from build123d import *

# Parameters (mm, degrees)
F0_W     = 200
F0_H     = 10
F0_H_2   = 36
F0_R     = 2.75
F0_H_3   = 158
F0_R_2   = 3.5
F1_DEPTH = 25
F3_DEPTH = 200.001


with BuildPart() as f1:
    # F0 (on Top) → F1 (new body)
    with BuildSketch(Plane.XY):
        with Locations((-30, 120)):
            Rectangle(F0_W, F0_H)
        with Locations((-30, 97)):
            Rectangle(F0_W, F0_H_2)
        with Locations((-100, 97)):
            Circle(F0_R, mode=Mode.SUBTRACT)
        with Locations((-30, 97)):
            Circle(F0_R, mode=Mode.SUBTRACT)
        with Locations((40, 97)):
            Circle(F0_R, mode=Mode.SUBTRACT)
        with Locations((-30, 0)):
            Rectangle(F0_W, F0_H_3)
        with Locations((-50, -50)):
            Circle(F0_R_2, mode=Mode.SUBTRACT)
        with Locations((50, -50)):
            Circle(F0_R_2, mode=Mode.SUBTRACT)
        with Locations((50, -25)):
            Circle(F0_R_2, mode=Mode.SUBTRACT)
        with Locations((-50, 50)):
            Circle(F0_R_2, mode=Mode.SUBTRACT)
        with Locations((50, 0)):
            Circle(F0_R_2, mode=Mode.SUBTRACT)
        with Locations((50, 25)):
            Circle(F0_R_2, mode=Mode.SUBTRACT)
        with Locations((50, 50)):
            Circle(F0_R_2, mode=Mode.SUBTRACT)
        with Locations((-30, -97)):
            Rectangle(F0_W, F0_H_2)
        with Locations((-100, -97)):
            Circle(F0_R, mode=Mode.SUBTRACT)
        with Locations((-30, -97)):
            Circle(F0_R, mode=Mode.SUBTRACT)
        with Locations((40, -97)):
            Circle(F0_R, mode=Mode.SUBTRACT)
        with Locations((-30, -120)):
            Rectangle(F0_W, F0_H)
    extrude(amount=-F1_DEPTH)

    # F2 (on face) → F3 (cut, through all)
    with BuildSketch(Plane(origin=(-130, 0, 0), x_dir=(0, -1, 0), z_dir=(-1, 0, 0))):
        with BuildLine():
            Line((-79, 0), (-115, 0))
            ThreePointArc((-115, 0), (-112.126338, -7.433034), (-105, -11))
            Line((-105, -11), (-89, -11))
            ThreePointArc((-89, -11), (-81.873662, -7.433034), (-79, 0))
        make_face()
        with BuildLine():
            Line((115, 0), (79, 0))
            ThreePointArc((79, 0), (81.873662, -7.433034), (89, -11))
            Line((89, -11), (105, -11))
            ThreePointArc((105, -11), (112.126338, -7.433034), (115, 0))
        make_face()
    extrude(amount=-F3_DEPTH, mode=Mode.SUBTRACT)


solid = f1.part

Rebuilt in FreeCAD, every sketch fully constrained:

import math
import FreeCAD as App
import Part
import Sketcher

V = App.Vector
Q = App.Units.Quantity


def add_polygon(sketch, points):
    """Adds a closed chain of lines whose ends are joined by coincident constraints."""
    first, n = sketch.GeometryCount, len(points)
    for a, b in zip(points, points[1:] + points[:1]):
        sketch.addGeometry(Part.LineSegment(App.Vector(*a, 0), App.Vector(*b, 0)), False)
    for i in range(n):
        sketch.addConstraint(Sketcher.Constraint("Coincident", first + i, 2, first + (i + 1) % n, 1))

doc = App.newDocument("Part")
body = doc.addObject("PartDesign::Body", "Body")

# Sketch on XY plane
sketch1 = body.newObject("Sketcher::SketchObject", "Sketch")
sketch1.AttachmentSupport = (doc.getObject("XY_Plane"), [""])
sketch1.MapMode = "FlatFace"
add_polygon(sketch1, [(-130, 125), (-130, -125), (70, -125), (70, 125)])  # lines 0-3
sketch1.addGeometry(Part.Circle(V(-100, -97, 0), V(0, 0, 1), 2.8), False)  # 4
sketch1.addGeometry(Part.Circle(V(-30, -97, 0), V(0, 0, 1), 2.8), False)  # 5
sketch1.addGeometry(Part.Circle(V(-50, -50, 0), V(0, 0, 1), 3.5), False)  # 6
sketch1.addGeometry(Part.Circle(V(40, -97, 0), V(0, 0, 1), 2.8), False)  # 7
sketch1.addGeometry(Part.Circle(V(50, -50, 0), V(0, 0, 1), 3.5), False)  # 8
sketch1.addGeometry(Part.Circle(V(50, -25, 0), V(0, 0, 1), 3.5), False)  # 9
sketch1.addGeometry(Part.Circle(V(-100, 97, 0), V(0, 0, 1), 2.8), False)  # 10
sketch1.addGeometry(Part.Circle(V(-50, 50, 0), V(0, 0, 1), 3.5), False)  # 11
sketch1.addGeometry(Part.Circle(V(-30, 97, 0), V(0, 0, 1), 2.8), False)  # 12
sketch1.addGeometry(Part.Circle(V(50, 0, 0), V(0, 0, 1), 3.5), False)  # 13
sketch1.addGeometry(Part.Circle(V(50, 25, 0), V(0, 0, 1), 3.5), False)  # 14
sketch1.addGeometry(Part.Circle(V(50, 50, 0), V(0, 0, 1), 3.5), False)  # 15
sketch1.addGeometry(Part.Circle(V(40, 97, 0), V(0, 0, 1), 2.8), False)  # 16
sketch1.addConstraint(Sketcher.Constraint("Vertical", 0))
sketch1.addConstraint(Sketcher.Constraint("Horizontal", 1))
sketch1.addConstraint(Sketcher.Constraint("Vertical", 2))
sketch1.addConstraint(Sketcher.Constraint("Horizontal", 3))
sketch1.addConstraint(Sketcher.Constraint("Equal", 4, 5))
sketch1.addConstraint(Sketcher.Constraint("Equal", 5, 7))
sketch1.addConstraint(Sketcher.Constraint("Equal", 6, 8))
sketch1.addConstraint(Sketcher.Constraint("Equal", 8, 9))
sketch1.addConstraint(Sketcher.Constraint("Equal", 7, 10))
sketch1.addConstraint(Sketcher.Constraint("Equal", 9, 11))
sketch1.addConstraint(Sketcher.Constraint("Equal", 10, 12))
sketch1.addConstraint(Sketcher.Constraint("Equal", 11, 13))
sketch1.addConstraint(Sketcher.Constraint("Equal", 13, 14))
sketch1.addConstraint(Sketcher.Constraint("Equal", 14, 15))
sketch1.addConstraint(Sketcher.Constraint("Equal", 12, 16))
sketch1.addConstraint(Sketcher.Constraint("Symmetric", 8, 3, 11, 3, -1, 1))
sketch1.addConstraint(Sketcher.Constraint("Symmetric", 6, 3, 15, 3, -1, 1))
sketch1.addConstraint(Sketcher.Constraint("Symmetric", 6, 3, 8, 3, -2))
sketch1.addConstraint(Sketcher.Constraint("Symmetric", 4, 3, 10, 3, -1))
sketch1.addConstraint(Sketcher.Constraint("Symmetric", 5, 3, 12, 3, -1))
sketch1.addConstraint(Sketcher.Constraint("Symmetric", 9, 3, 14, 3, -1))
sketch1.addConstraint(Sketcher.Constraint("Symmetric", 7, 3, 16, 3, -1))
sketch1.addConstraint(Sketcher.Constraint("PointOnObject", 13, 3, -1))
sketch1.addConstraint(Sketcher.Constraint("Horizontal", 4, 3, 5, 3))
sketch1.addConstraint(Sketcher.Constraint("Horizontal", 5, 3, 7, 3))
sketch1.addConstraint(Sketcher.Constraint("Vertical", 8, 3, 9, 3))
sketch1.addConstraint(Sketcher.Constraint("Vertical", 9, 3, 13, 3))
sketch1.addConstraint(Sketcher.Constraint("Diameter", 6, Q("7 mm")))
sketch1.addConstraint(Sketcher.Constraint("Diameter", 4, Q("5.5 mm")))
sketch1.addConstraint(Sketcher.Constraint("DistanceX", 1, 1, 1, 2, Q("200 mm")))
sketch1.addConstraint(Sketcher.Constraint("DistanceY", 0, 2, 0, 1, Q("250 mm")))
sketch1.addConstraint(Sketcher.Constraint("DistanceX", 4, 3, -1, 1, Q("100 mm")))
sketch1.addConstraint(Sketcher.Constraint("DistanceY", 4, 3, -1, 1, Q("97 mm")))
sketch1.addConstraint(Sketcher.Constraint("DistanceX", 5, 3, -1, 1, Q("30 mm")))
sketch1.addConstraint(Sketcher.Constraint("DistanceX", 6, 3, -1, 1, Q("50 mm")))
sketch1.addConstraint(Sketcher.Constraint("DistanceY", 6, 3, -1, 1, Q("50 mm")))
sketch1.addConstraint(Sketcher.Constraint("DistanceX", -1, 1, 7, 3, Q("40 mm")))
sketch1.addConstraint(Sketcher.Constraint("DistanceY", 9, 3, -1, 1, Q("25 mm")))
sketch1.addConstraint(Sketcher.Constraint("DistanceX", 0, 2, -1, 1, Q("130 mm")))
sketch1.addConstraint(Sketcher.Constraint("DistanceY", 0, 2, -1, 1, Q("125 mm")))
pad1 = body.newObject("PartDesign::Pad", "Pad")
pad1.Profile = sketch1
pad1.Length = 25
pad1.Reversed = True

# Sketch on YZ plane
sketch2 = body.newObject("Sketcher::SketchObject", "Sketch001")
sketch2.AttachmentSupport = (doc.getObject("YZ_Plane"), [""])
sketch2.MapMode = "FlatFace"
sketch2.AttachmentOffset = App.Placement(V(0, 0, -130), App.Rotation())
sketch2.addGeometry(Part.LineSegment(V(79, 0, 0), V(115, 0, 0)), False)
sketch2.addGeometry(Part.ArcOfCircle(Part.Circle(V(104, 0, 0), V(0, 0, 1), 11), math.radians(-85), math.radians(0)), False)
sketch2.addGeometry(Part.LineSegment(V(105, -11, 0), V(89, -11, 0)), False)
sketch2.addGeometry(Part.ArcOfCircle(Part.Circle(V(90, 0, 0), V(0, 0, 1), 11), math.radians(-180), math.radians(-95)), False)
sketch2.addGeometry(Part.LineSegment(V(-115, 0, 0), V(-79, 0, 0)), False)
sketch2.addGeometry(Part.ArcOfCircle(Part.Circle(V(-90, 0, 0), V(0, 0, 1), 11), math.radians(-85), math.radians(0)), False)
sketch2.addGeometry(Part.LineSegment(V(-89, -11, 0), V(-105, -11, 0)), False)
sketch2.addGeometry(Part.ArcOfCircle(Part.Circle(V(-104, 0, 0), V(0, 0, 1), 11), math.radians(-180), math.radians(-95)), False)
sketch2.addConstraint(Sketcher.Constraint("Coincident", 0, 2, 1, 2))
sketch2.addConstraint(Sketcher.Constraint("Coincident", 1, 1, 2, 1))
sketch2.addConstraint(Sketcher.Constraint("Coincident", 2, 2, 3, 2))
sketch2.addConstraint(Sketcher.Constraint("Coincident", 3, 1, 0, 1))
sketch2.addConstraint(Sketcher.Constraint("Coincident", 4, 2, 5, 2))
sketch2.addConstraint(Sketcher.Constraint("Coincident", 5, 1, 6, 1))
sketch2.addConstraint(Sketcher.Constraint("Coincident", 6, 2, 7, 2))
sketch2.addConstraint(Sketcher.Constraint("Coincident", 7, 1, 4, 1))
sketch2.addConstraint(Sketcher.Constraint("Horizontal", 0))
sketch2.addConstraint(Sketcher.Constraint("Horizontal", 2))
sketch2.addConstraint(Sketcher.Constraint("Horizontal", 4))
sketch2.addConstraint(Sketcher.Constraint("Horizontal", 6))
sketch2.addConstraint(Sketcher.Constraint("Equal", 1, 3))
sketch2.addConstraint(Sketcher.Constraint("Equal", 3, 5))
sketch2.addConstraint(Sketcher.Constraint("Equal", 5, 7))
sketch2.addConstraint(Sketcher.Constraint("Symmetric", 3, 3, 5, 3, -1, 1))
sketch2.addConstraint(Sketcher.Constraint("Symmetric", 1, 3, 7, 3, -1, 1))
sketch2.addConstraint(Sketcher.Constraint("Symmetric", 2, 2, 5, 1, -2))
sketch2.addConstraint(Sketcher.Constraint("PointOnObject", 1, 3, -1))
sketch2.addConstraint(Sketcher.Constraint("PointOnObject", 0, 2, -1))
sketch2.addConstraint(Sketcher.Constraint("PointOnObject", 4, 2, -1))
sketch2.addConstraint(Sketcher.Constraint("DistanceX", 0, 1, 0, 2, Q("36 mm")))
sketch2.addConstraint(Sketcher.Constraint("DistanceX", 2, 2, 2, 1, Q("16 mm")))
sketch2.addConstraint(Sketcher.Constraint("Radius", 1, Q("11.05 mm")))
sketch2.addConstraint(Sketcher.Constraint("DistanceX", -1, 1, 0, 2, Q("115 mm")))
pocket1 = body.newObject("PartDesign::Pocket", "Pocket")
pocket1.Profile = sketch2
pocket1.Type = "ThroughAll"
pocket1.Reversed = True

doc.recompute()
